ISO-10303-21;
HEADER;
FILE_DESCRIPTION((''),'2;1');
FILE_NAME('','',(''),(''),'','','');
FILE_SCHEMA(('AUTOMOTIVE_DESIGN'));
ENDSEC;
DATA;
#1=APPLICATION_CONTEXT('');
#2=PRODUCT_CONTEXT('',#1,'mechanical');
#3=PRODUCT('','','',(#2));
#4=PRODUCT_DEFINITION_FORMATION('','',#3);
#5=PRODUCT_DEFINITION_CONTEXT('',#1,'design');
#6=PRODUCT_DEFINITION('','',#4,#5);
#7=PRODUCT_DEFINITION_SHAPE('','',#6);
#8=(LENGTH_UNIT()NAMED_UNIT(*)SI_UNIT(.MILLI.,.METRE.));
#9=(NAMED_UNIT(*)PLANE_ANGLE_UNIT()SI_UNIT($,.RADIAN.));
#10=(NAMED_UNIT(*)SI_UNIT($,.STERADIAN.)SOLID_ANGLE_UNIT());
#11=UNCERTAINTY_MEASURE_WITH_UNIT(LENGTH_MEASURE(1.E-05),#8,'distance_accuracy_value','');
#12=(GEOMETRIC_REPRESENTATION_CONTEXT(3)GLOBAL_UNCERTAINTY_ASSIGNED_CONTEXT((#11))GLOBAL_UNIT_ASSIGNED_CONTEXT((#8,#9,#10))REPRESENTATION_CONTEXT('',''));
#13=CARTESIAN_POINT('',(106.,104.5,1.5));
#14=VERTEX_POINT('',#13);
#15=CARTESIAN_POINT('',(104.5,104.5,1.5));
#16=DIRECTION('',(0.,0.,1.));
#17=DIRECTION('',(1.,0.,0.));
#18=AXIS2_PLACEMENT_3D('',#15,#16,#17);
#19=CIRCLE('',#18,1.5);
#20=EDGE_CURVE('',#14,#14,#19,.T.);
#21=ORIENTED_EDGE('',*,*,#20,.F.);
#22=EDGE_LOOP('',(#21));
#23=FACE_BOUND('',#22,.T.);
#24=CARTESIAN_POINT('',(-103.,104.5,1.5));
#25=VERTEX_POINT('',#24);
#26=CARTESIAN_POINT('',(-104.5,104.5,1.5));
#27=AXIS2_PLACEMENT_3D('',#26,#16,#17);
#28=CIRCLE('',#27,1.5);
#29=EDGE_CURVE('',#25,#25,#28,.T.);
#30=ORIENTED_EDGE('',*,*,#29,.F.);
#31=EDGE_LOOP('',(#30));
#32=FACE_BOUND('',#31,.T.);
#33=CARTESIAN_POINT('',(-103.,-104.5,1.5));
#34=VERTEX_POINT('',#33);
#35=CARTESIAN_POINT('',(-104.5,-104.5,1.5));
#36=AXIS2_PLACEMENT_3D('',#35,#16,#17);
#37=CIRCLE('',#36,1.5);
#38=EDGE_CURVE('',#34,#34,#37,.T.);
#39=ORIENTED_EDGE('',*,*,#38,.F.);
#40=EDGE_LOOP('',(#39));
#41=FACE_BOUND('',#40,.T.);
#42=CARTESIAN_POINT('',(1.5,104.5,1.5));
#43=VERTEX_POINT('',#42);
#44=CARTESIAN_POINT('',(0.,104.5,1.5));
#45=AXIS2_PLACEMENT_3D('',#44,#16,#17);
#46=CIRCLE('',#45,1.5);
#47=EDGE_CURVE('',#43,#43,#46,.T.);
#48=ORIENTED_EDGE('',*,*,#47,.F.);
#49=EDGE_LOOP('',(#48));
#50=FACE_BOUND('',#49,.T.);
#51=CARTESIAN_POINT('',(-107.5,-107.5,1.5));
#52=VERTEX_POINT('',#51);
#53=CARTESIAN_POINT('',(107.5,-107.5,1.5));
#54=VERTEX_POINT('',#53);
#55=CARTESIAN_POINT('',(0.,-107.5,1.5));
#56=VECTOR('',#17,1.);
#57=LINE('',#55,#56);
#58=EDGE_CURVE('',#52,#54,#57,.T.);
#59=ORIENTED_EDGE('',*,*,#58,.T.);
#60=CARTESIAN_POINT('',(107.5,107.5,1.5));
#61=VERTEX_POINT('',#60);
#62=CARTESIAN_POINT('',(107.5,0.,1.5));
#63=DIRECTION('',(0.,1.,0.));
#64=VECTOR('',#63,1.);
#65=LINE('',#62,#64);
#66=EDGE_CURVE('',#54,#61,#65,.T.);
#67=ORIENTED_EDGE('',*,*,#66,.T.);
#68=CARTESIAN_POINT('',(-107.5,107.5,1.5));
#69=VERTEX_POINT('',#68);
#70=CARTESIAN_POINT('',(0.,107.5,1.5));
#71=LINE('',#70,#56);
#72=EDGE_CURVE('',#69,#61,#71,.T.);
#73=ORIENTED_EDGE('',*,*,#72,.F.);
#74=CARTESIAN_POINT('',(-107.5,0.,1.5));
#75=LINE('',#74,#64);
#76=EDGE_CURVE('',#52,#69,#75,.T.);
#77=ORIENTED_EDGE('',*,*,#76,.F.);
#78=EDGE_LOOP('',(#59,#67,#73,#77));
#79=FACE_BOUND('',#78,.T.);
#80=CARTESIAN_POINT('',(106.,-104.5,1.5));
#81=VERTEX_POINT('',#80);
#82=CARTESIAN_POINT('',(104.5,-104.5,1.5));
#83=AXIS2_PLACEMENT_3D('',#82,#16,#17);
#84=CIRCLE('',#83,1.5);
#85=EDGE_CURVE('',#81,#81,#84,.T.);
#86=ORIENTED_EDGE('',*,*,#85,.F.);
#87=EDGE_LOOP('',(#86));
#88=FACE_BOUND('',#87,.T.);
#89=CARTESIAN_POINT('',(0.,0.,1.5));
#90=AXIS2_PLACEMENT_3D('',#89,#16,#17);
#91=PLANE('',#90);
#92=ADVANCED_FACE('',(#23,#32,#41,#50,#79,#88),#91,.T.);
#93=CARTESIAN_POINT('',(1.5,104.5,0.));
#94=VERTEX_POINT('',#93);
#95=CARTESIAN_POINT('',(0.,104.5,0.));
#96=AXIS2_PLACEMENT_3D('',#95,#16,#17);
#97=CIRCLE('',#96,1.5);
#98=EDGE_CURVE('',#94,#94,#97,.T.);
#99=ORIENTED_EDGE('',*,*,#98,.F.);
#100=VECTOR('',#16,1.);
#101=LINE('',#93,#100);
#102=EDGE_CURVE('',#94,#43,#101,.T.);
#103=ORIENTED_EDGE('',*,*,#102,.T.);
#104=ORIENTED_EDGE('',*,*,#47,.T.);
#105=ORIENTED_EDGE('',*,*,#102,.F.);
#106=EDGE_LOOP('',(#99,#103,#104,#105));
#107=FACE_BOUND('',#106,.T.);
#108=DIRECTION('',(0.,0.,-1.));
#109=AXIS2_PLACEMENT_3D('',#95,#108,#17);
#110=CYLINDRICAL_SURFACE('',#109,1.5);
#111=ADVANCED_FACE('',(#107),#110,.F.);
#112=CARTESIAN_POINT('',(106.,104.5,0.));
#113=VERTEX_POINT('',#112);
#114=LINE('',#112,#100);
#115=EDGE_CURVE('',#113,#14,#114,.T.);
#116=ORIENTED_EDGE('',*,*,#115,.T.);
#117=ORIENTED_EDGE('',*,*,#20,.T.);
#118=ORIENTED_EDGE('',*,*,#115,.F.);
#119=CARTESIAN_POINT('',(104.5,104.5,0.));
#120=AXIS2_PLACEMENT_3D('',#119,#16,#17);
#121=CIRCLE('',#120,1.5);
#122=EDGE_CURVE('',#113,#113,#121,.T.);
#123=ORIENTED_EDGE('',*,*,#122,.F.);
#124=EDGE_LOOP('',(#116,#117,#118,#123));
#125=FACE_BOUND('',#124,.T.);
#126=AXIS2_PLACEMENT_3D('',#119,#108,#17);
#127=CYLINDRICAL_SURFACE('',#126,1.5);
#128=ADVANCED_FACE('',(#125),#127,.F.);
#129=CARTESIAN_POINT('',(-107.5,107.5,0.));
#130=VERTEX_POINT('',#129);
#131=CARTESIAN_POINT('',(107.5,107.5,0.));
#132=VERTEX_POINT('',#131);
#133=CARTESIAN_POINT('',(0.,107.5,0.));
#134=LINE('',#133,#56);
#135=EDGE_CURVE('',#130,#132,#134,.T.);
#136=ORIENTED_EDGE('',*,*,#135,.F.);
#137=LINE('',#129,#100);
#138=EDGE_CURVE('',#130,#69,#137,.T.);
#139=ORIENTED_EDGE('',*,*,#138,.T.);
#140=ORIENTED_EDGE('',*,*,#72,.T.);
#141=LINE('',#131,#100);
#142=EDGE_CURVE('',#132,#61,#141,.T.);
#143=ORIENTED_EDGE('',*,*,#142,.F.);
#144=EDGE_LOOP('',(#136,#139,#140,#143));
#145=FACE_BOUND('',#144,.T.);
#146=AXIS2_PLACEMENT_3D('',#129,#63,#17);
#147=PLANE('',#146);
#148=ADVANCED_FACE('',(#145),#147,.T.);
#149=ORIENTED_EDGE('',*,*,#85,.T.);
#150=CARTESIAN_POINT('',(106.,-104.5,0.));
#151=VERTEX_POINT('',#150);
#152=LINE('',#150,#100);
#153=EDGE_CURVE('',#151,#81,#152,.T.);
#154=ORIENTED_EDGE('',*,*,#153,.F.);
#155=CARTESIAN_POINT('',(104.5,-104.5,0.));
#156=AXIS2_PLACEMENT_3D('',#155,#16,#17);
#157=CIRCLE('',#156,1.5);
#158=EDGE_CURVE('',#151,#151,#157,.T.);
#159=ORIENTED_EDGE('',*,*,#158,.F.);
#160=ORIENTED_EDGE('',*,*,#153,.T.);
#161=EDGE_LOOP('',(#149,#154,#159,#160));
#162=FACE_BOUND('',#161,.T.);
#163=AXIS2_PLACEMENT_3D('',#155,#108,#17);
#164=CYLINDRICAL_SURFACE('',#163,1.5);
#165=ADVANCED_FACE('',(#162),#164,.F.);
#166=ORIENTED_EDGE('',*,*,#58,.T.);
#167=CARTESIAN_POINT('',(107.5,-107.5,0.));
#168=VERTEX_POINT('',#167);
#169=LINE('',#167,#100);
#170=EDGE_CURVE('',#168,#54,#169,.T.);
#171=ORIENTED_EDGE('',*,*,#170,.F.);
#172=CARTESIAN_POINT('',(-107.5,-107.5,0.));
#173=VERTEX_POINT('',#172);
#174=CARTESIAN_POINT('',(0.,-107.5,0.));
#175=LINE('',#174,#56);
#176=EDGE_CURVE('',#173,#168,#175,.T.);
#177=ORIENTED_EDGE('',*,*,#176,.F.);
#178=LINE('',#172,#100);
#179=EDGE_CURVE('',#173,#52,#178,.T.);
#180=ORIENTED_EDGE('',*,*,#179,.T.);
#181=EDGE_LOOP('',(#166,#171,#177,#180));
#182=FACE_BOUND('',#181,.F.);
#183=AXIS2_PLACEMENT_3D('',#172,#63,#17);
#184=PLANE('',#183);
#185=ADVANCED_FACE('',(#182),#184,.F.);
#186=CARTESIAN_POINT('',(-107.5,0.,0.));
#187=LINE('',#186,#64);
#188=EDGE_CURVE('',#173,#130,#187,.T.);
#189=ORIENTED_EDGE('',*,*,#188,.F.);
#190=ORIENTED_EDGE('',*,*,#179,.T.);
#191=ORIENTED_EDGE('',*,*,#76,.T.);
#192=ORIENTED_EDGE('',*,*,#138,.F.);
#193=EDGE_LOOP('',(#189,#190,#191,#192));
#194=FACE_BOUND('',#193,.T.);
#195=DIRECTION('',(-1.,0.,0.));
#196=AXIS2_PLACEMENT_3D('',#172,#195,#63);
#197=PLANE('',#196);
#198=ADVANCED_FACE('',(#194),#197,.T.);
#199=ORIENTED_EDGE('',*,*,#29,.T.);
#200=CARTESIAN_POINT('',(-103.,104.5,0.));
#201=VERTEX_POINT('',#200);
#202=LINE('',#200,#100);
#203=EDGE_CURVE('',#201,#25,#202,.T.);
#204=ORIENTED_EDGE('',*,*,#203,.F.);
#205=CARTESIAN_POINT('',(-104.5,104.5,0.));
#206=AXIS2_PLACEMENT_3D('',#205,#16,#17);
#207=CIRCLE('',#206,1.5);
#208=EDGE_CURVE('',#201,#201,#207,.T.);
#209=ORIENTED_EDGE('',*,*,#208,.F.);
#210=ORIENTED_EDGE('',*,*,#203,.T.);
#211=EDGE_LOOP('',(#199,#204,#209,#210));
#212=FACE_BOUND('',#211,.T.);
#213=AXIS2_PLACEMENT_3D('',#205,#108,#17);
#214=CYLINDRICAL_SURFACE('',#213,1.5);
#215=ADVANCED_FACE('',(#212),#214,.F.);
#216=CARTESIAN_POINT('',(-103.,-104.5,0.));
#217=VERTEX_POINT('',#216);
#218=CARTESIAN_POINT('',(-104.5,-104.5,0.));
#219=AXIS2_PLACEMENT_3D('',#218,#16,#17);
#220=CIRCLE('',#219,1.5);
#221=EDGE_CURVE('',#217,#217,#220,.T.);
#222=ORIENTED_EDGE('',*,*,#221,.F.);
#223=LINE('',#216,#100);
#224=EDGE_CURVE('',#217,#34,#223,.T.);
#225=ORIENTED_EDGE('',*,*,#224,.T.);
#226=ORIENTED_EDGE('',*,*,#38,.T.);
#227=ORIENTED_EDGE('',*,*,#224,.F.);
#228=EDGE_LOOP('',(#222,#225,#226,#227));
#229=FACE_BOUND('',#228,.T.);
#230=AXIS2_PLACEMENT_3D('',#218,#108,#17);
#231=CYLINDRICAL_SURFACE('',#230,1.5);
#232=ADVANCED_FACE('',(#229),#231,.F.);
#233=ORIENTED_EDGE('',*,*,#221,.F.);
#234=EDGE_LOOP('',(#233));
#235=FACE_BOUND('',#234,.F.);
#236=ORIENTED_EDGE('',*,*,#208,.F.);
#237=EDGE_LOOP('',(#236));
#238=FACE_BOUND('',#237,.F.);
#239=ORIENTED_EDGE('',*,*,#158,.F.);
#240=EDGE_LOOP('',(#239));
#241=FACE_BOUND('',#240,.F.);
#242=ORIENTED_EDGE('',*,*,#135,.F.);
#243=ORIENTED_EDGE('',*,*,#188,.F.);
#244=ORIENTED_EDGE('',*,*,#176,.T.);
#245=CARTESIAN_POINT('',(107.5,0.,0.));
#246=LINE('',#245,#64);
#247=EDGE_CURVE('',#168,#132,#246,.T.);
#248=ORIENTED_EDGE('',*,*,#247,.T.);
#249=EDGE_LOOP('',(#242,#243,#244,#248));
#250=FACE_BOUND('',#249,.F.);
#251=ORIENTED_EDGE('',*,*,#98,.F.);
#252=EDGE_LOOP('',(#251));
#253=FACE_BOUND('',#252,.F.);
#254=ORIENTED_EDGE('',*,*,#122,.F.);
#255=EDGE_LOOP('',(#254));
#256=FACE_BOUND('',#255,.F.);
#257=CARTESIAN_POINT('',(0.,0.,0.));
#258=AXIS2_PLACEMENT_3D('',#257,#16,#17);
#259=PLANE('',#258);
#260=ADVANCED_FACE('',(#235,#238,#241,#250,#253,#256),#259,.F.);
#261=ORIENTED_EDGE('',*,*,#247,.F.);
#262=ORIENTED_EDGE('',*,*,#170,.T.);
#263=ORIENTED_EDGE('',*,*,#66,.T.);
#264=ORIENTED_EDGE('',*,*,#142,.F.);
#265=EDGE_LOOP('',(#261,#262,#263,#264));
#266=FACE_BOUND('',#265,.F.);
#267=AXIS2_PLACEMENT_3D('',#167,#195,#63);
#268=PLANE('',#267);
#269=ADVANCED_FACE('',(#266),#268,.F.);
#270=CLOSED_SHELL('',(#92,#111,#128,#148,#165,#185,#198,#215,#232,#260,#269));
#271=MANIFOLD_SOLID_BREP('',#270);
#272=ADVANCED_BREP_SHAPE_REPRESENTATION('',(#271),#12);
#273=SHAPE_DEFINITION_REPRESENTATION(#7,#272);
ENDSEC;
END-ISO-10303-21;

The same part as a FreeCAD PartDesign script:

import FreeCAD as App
import Part
import Sketcher

V = App.Vector
Q = App.Units.Quantity


def add_polygon(sketch, points):
    """Adds a closed chain of lines whose ends are joined by coincident constraints."""
    first, n = sketch.GeometryCount, len(points)
    for a, b in zip(points, points[1:] + points[:1]):
        sketch.addGeometry(Part.LineSegment(App.Vector(*a, 0), App.Vector(*b, 0)), False)
    for i in range(n):
        sketch.addConstraint(Sketcher.Constraint("Coincident", first + i, 2, first + (i + 1) % n, 1))

doc = App.newDocument("Part")
body = doc.addObject("PartDesign::Body", "Body")

# Sketch on XY plane
sketch1 = doc.addObject("Sketcher::SketchObject", "Sketch")
body.addObject(sketch1)
sketch1.AttachmentSupport = (doc.XY_Plane, [""])
sketch1.MapMode = "FlatFace"
add_polygon(sketch1, [(-107.5, 107.5), (-107.5, -107.5), (107.5, -107.5), (107.5, 107.5)])  # lines 0-3
sketch1.addGeometry(Part.Circle(V(-104.5, -104.5, 0), V(0, 0, 1), 1.5), False)  # 4
sketch1.addGeometry(Part.Circle(V(104.5, -104.5, 0), V(0, 0, 1), 1.5), False)  # 5
sketch1.addGeometry(Part.Circle(V(-104.5, 104.5, 0), V(0, 0, 1), 1.5), False)  # 6
sketch1.addGeometry(Part.Circle(V(0, 104.5, 0), V(0, 0, 1), 1.5), False)  # 7
sketch1.addGeometry(Part.Circle(V(104.5, 104.5, 0), V(0, 0, 1), 1.5), False)  # 8
sketch1.addConstraint([
    Sketcher.Constraint("Vertical", 0),
    Sketcher.Constraint("Horizontal", 1),
    Sketcher.Constraint("Vertical", 2),
    Sketcher.Constraint("Horizontal", 3),
    Sketcher.Constraint("Equal", 4, 5),
    Sketcher.Constraint("Equal", 5, 6),
    Sketcher.Constraint("Equal", 6, 7),
    Sketcher.Constraint("Equal", 7, 8),
    Sketcher.Constraint("Symmetric", 5, 3, 6, 3, -1, 1),
    Sketcher.Constraint("Symmetric", 4, 3, 8, 3, -1, 1),
    Sketcher.Constraint("Symmetric", 0, 2, 2, 2, -1, 1),
    Sketcher.Constraint("Symmetric", 4, 3, 5, 3, -2),
    Sketcher.Constraint("PointOnObject", 7, 3, -2),
    Sketcher.Constraint("Horizontal", 6, 3, 7, 3),
    Sketcher.Constraint("Equal", 3, 0),
    Sketcher.Constraint("Diameter", 4, Q("3 mm")),
    Sketcher.Constraint("DistanceX", 1, 1, 1, 2, Q("215 mm")),
    Sketcher.Constraint("DistanceX", 4, 3, 5, 3, Q("209 mm")),
    Sketcher.Constraint("DistanceY", 4, 3, 6, 3, Q("209 mm")),
])
pad1 = doc.addObject("PartDesign::Pad", "Pad")
body.addObject(pad1)
pad1.Profile = sketch1
pad1.Length = 1.5

doc.recompute()
